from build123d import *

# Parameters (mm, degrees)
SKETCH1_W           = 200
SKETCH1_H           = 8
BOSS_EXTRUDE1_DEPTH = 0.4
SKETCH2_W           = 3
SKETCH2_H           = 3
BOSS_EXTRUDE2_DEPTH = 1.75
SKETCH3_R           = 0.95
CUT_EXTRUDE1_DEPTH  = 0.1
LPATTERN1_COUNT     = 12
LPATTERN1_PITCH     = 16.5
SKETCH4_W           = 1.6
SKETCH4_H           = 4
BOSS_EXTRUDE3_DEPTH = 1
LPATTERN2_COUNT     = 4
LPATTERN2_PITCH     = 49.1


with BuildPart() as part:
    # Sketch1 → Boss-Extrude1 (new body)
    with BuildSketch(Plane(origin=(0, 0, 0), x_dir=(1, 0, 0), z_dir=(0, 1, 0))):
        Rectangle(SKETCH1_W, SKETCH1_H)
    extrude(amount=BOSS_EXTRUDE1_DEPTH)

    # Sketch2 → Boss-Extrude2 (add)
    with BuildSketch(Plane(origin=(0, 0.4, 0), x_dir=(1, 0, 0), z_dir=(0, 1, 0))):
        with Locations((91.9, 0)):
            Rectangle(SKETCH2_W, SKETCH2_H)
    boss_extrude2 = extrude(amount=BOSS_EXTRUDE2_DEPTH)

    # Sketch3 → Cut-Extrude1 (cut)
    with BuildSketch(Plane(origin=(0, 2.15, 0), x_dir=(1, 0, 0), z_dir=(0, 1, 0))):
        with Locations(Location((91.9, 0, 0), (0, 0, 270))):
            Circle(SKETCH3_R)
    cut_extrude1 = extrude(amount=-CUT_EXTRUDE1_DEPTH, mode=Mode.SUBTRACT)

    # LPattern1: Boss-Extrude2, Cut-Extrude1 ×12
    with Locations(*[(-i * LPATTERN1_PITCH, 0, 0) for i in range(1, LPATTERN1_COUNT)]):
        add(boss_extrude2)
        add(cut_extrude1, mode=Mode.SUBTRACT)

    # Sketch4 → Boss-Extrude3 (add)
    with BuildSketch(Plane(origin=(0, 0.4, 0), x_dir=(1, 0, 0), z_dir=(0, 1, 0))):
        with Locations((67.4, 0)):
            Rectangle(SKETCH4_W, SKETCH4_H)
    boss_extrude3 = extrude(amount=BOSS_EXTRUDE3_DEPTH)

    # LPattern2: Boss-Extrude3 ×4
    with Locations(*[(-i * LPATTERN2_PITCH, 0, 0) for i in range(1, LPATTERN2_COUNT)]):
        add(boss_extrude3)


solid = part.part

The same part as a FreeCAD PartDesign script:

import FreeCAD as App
import Part
import Sketcher
from FreeCAD import Vector
Q = App.Units.Quantity


def add_polygon(sketch, points):
    """Adds a closed chain of lines whose ends are joined by coincident constraints."""
    first, n = sketch.GeometryCount, len(points)
    for a, b in zip(points, points[1:] + points[:1]):
        sketch.addGeometry(Part.LineSegment(App.Vector(*a, 0), App.Vector(*b, 0)), False)
    for i in range(n):
        sketch.addConstraint(Sketcher.Constraint("Coincident", first + i, 2, first + (i + 1) % n, 1))

doc = App.newDocument("Part")
body = doc.addObject("PartDesign::Body", "Body")

# Sketch on XZ plane
sketch1 = body.newObject("Sketcher::SketchObject", "Sketch")
sketch1.AttachmentSupport = (doc.getObject("XZ_Plane"), [""])
sketch1.MapMode = "FlatFace"
add_polygon(sketch1, [(-100, -4), (-100, 4), (100, 4), (100, -4)])  # lines 0-3
sketch1.addConstraint([
    Sketcher.Constraint("Vertical", 0),
    Sketcher.Constraint("Horizontal", 1),
    Sketcher.Constraint("Vertical", 2),
    Sketcher.Constraint("Horizontal", 3),
    Sketcher.Constraint("Symmetric", 0, 2, 2, 2, -1, 1),
    Sketcher.Constraint("DistanceX", 1, 1, 1, 2, Q("200 mm")),
    Sketcher.Constraint("DistanceY", 0, 1, 0, 2, Q("8 mm")),
])
pad1 = body.newObject("PartDesign::Pad", "Pad")
pad1.Profile = sketch1
pad1.Length = 0.4
pad1.Reversed = True

# Sketch on XZ plane
sketch2 = body.newObject("Sketcher::SketchObject", "Sketch001")
sketch2.AttachmentSupport = (doc.getObject("XZ_Plane"), [""])
sketch2.MapMode = "FlatFace"
sketch2.AttachmentOffset = App.Placement(Vector(0, 0, -0.4), App.Rotation())
add_polygon(sketch2, [(90.4, -1.5), (90.4, 1.5), (93.4, 1.5), (93.4, -1.5)])  # lines 0-3
sketch2.addConstraint([
    Sketcher.Constraint("Vertical", 0),
    Sketcher.Constraint("Horizontal", 1),
    Sketcher.Constraint("Vertical", 2),
    Sketcher.Constraint("Horizontal", 3),
    Sketcher.Constraint("Equal", 3, 0),
    Sketcher.Constraint("DistanceX", 1, 1, 1, 2, Q("3 mm")),
    Sketcher.Constraint("DistanceX", -1, 1, 0, 2, Q("90.4 mm")),
    Sketcher.Constraint("DistanceY", -1, 1, 0, 2, Q("1.5 mm")),
])
pad2 = body.newObject("PartDesign::Pad", "Pad001")
pad2.Profile = sketch2
pad2.Length = 1.75
pad2.Reversed = True

# Sketch on XZ plane
sketch3 = body.newObject("Sketcher::SketchObject", "Sketch002")
sketch3.AttachmentSupport = (doc.getObject("XZ_Plane"), [""])
sketch3.MapMode = "FlatFace"
sketch3.AttachmentOffset = App.Placement(Vector(0, 0, -2.15), App.Rotation())
sketch3.addGeometry(Part.Circle(Vector(91.9, 0, 0), Vector(0, 0, 1), 0.9), False)
sketch3.addConstraint([
    Sketcher.Constraint("PointOnObject", 0, 3, -1),
    Sketcher.Constraint("Diameter", 0, Q("1.9 mm")),
    Sketcher.Constraint("DistanceX", -1, 1, 0, 3, Q("91.9 mm")),
])
pocket1 = body.newObject("PartDesign::Pocket", "Pocket")
pocket1.Profile = sketch3
pocket1.Length = 0.1
pocket1.Reversed = True
doc.recompute()

linearpattern = body.newObject("PartDesign::LinearPattern", "LinearPattern")
linearpattern.Originals = [pad2, pocket1]
linearpattern.Direction = (doc.getObject("X_Axis"), [""])
linearpattern.Mode = "offset"
linearpattern.Offset = 16.5
linearpattern.Occurrences = 12
linearpattern.Reversed = True
body.Tip = linearpattern

# Sketch on XZ plane
sketch4 = body.newObject("Sketcher::SketchObject", "Sketch003")
sketch4.AttachmentSupport = (doc.getObject("XZ_Plane"), [""])
sketch4.MapMode = "FlatFace"
sketch4.AttachmentOffset = App.Placement(Vector(0, 0, -0.4), App.Rotation())
add_polygon(sketch4, [(66.6, -2), (66.6, 2), (68.2, 2), (68.2, -2)])  # lines 0-3
sketch4.addConstraint([
    Sketcher.Constraint("Vertical", 0),
    Sketcher.Constraint("Horizontal", 1),
    Sketcher.Constraint("Vertical", 2),
    Sketcher.Constraint("Horizontal", 3),
    Sketcher.Constraint("DistanceY", 0, 1, 0, 2, Q("4 mm")),
    Sketcher.Constraint("DistanceX", 1, 1, 1, 2, Q("1.6 mm")),
    Sketcher.Constraint("DistanceY", -1, 1, 0, 2, Q("2 mm")),
    Sketcher.Constraint("DistanceX", -1, 1, 0, 2, Q("66.6 mm")),
])
pad3 = body.newObject("PartDesign::Pad", "Pad002")
pad3.Profile = sketch4
pad3.Length = 1
pad3.Reversed = True
doc.recompute()

linearpattern2 = body.newObject("PartDesign::LinearPattern", "LinearPattern001")
linearpattern2.Originals = [pad3]
linearpattern2.Direction = (doc.getObject("X_Axis"), [""])
linearpattern2.Mode = "offset"
linearpattern2.Offset = 49.1
linearpattern2.Occurrences = 4
linearpattern2.Reversed = True
body.Tip = linearpattern2

doc.recompute()
